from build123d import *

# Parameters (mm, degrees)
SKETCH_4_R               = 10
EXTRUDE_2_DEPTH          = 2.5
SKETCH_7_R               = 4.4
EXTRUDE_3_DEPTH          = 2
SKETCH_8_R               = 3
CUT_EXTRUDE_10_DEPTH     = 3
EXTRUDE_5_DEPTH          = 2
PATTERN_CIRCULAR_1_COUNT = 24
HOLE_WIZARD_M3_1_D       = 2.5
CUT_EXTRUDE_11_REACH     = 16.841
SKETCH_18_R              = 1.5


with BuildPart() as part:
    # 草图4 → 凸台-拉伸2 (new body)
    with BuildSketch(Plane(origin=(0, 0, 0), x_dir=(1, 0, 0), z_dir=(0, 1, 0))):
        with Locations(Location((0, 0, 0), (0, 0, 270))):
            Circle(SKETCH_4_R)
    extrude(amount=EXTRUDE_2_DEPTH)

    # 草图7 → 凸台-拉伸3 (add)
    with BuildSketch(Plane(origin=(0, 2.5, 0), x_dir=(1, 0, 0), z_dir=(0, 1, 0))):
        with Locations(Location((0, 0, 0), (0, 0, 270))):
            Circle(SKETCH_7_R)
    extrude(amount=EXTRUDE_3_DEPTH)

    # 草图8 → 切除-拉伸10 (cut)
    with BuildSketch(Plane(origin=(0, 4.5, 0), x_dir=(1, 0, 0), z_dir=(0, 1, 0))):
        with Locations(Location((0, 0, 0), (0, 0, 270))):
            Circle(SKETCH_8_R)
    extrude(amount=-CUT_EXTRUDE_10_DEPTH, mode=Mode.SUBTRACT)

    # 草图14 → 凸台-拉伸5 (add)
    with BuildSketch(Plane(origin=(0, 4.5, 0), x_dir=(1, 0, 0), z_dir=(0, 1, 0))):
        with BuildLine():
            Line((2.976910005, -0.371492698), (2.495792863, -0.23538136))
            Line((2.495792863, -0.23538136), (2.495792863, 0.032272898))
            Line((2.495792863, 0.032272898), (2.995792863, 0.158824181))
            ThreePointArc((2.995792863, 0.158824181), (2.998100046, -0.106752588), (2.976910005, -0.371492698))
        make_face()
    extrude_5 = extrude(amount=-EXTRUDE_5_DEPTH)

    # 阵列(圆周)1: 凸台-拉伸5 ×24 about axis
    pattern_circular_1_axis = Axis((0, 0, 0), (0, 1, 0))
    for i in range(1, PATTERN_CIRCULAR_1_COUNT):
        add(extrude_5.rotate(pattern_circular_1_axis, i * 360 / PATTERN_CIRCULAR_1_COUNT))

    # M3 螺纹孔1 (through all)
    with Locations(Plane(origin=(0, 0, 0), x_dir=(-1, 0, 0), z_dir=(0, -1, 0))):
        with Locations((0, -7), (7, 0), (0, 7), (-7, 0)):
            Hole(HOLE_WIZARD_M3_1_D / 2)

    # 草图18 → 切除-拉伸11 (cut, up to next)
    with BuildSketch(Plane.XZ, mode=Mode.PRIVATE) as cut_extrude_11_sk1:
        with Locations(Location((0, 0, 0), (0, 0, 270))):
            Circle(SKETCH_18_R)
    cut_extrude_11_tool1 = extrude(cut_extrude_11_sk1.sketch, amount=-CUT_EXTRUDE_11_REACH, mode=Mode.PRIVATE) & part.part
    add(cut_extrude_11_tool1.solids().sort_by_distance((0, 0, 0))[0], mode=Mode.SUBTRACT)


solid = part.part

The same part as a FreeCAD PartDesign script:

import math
import FreeCAD as App
import Part
import Sketcher
from FreeCAD import Vector
Q = App.Units.Quantity

doc = App.newDocument("Part")
body = doc.addObject("PartDesign::Body", "Body")

# Sketch on XZ plane
sketch1 = body.newObject("Sketcher::SketchObject", "Sketch")
sketch1.AttachmentSupport = (doc.getObject("XZ_Plane"), [""])
sketch1.MapMode = "FlatFace"
sketch1.addGeometry(Part.Circle(Vector(0, 0, 0), Vector(0, 0, 1), 10), False)
sketch1.addConstraint([
    Sketcher.Constraint("Coincident", 0, 3, -1, 1),
    Sketcher.Constraint("Diameter", 0, Q("20 mm")),
])
pad1 = body.newObject("PartDesign::Pad", "Pad")
pad1.Profile = sketch1
pad1.Length = 2.5
pad1.Reversed = True

# Sketch on XZ plane
sketch2 = body.newObject("Sketcher::SketchObject", "Sketch001")
sketch2.AttachmentSupport = (doc.getObject("XZ_Plane"), [""])
sketch2.MapMode = "FlatFace"
sketch2.AttachmentOffset = App.Placement(Vector(0, 0, -2.5), App.Rotation())
sketch2.addGeometry(Part.Circle(Vector(0, 0, 0), Vector(0, 0, 1), 4.4), False)
sketch2.addConstraint([
    Sketcher.Constraint("Coincident", 0, 3, -1, 1),
    Sketcher.Constraint("Diameter", 0, Q("8.8 mm")),
])
pad2 = body.newObject("PartDesign::Pad", "Pad001")
pad2.Profile = sketch2
pad2.Length = 2
pad2.Reversed = True

# Sketch on XZ plane
sketch3 = body.newObject("Sketcher::SketchObject", "Sketch002")
sketch3.AttachmentSupport = (doc.getObject("XZ_Plane"), [""])
sketch3.MapMode = "FlatFace"
sketch3.AttachmentOffset = App.Placement(Vector(0, 0, -4.5), App.Rotation())
sketch3.addGeometry(Part.Circle(Vector(0, 0, 0), Vector(0, 0, 1), 3), False)
sketch3.addConstraint([
    Sketcher.Constraint("Coincident", 0, 3, -1, 1),
    Sketcher.Constraint("Diameter", 0, Q("6 mm")),
])
pocket1 = body.newObject("PartDesign::Pocket", "Pocket")
pocket1.Profile = sketch3
pocket1.Length = 3
pocket1.Reversed = True

# Sketch on XZ plane
sketch4 = body.newObject("Sketcher::SketchObject", "Sketch003")
sketch4.AttachmentSupport = (doc.getObject("XZ_Plane"), [""])
sketch4.MapMode = "FlatFace"
sketch4.AttachmentOffset = App.Placement(Vector(0, 0, -4.5), App.Rotation())
sketch4.addGeometry([
    Part.LineSegment(Vector(2.495793, 0.235381, 0), Vector(2.97691, 0.371493, 0)),
    Part.ArcOfCircle(Part.Circle(Vector(0, 0, 0), Vector(0, 0, 1), 3), math.radians(-3.034737), math.radians(7.113247)),
    Part.LineSegment(Vector(2.995793, -0.158824, 0), Vector(2.495793, -0.032273, 0)),
    Part.LineSegment(Vector(2.495793, -0.032273, 0), Vector(2.495793, 0.235381, 0)),
], False)
sketch4.addConstraint([
    Sketcher.Constraint("Coincident", 0, 2, 1, 2),
    Sketcher.Constraint("Coincident", 1, 1, 2, 1),
    Sketcher.Constraint("Coincident", 2, 2, 3, 1),
    Sketcher.Constraint("Coincident", 3, 2, 0, 1),
    Sketcher.Constraint("Vertical", 3),
    Sketcher.Constraint("Coincident", 1, 3, -1, 1),
    Sketcher.Constraint("Radius", 1, Q("3 mm")),
    Sketcher.Constraint("Distance", 0, Q("0.5 mm")),
    Sketcher.Constraint("DistanceX", 2, 2, 1, 1, Q("0.5 mm")),
    Sketcher.Constraint("DistanceY", 3, 1, 3, 2, Q("0.267654 mm")),
    Sketcher.Constraint("DistanceX", -1, 1, 0, 2, Q("2.97691 mm")),
    Sketcher.Constraint("DistanceY", -1, 1, 3, 2, Q("0.235381 mm")),
])
pad3 = body.newObject("PartDesign::Pad", "Pad002")
pad3.Profile = sketch4
pad3.Length = 2
doc.recompute()

polarpattern = body.newObject("PartDesign::PolarPattern", "PolarPattern")
polarpattern.Originals = [pad3]
polarpattern.Axis = (doc.getObject("Y_Axis"), [""])
polarpattern.Angle = 360
polarpattern.Occurrences = 24
body.Tip = polarpattern

# Sketch on XZ plane
sketch5 = body.newObject("Sketcher::SketchObject", "Sketch004")
sketch5.AttachmentSupport = (doc.getObject("XZ_Plane"), [""])
sketch5.MapMode = "FlatFace"
sketch5.addGeometry([
    Part.Circle(Vector(0, 7, 0), Vector(0, 0, 1), 1.25),
    Part.Circle(Vector(-7, 0, 0), Vector(0, 0, 1), 1.25),
    Part.Circle(Vector(0, -7, 0), Vector(0, 0, 1), 1.25),
    Part.Circle(Vector(7, 0, 0), Vector(0, 0, 1), 1.25),
], False)
sketch5.addConstraint([
    Sketcher.Constraint("Equal", 0, 1),
    Sketcher.Constraint("Equal", 1, 2),
    Sketcher.Constraint("Equal", 2, 3),
    Sketcher.Constraint("Symmetric", 0, 3, 2, 3, -1, 1),
    Sketcher.Constraint("Symmetric", 1, 3, 3, 3, -1, 1),
    Sketcher.Constraint("PointOnObject", 0, 3, -2),
    Sketcher.Constraint("PointOnObject", 1, 3, -1),
    Sketcher.Constraint("Diameter", 0, Q("2.5 mm")),
    Sketcher.Constraint("DistanceY", -1, 1, 0, 3, Q("7 mm")),
    Sketcher.Constraint("DistanceX", 1, 3, -1, 1, Q("7 mm")),
])
doc.recompute()
hole = body.newObject("PartDesign::Hole", "Hole")
hole.Profile = sketch5
hole.ThreadType = "None"
hole.Diameter = 2.5
hole.DepthType = "ThroughAll"

# Sketch on XZ plane
sketch6 = body.newObject("Sketcher::SketchObject", "Sketch005")
sketch6.AttachmentSupport = (doc.getObject("XZ_Plane"), [""])
sketch6.MapMode = "FlatFace"
sketch6.addGeometry(Part.Circle(Vector(0, 0, 0), Vector(0, 0, 1), 1.5), False)
sketch6.addConstraint([
    Sketcher.Constraint("Coincident", 0, 3, -1, 1),
    Sketcher.Constraint("Diameter", 0, Q("3 mm")),
])
pocket2 = body.newObject("PartDesign::Pocket", "Pocket001")
pocket2.Profile = sketch6
pocket2.Type = "UpToFirst"

doc.recompute()
